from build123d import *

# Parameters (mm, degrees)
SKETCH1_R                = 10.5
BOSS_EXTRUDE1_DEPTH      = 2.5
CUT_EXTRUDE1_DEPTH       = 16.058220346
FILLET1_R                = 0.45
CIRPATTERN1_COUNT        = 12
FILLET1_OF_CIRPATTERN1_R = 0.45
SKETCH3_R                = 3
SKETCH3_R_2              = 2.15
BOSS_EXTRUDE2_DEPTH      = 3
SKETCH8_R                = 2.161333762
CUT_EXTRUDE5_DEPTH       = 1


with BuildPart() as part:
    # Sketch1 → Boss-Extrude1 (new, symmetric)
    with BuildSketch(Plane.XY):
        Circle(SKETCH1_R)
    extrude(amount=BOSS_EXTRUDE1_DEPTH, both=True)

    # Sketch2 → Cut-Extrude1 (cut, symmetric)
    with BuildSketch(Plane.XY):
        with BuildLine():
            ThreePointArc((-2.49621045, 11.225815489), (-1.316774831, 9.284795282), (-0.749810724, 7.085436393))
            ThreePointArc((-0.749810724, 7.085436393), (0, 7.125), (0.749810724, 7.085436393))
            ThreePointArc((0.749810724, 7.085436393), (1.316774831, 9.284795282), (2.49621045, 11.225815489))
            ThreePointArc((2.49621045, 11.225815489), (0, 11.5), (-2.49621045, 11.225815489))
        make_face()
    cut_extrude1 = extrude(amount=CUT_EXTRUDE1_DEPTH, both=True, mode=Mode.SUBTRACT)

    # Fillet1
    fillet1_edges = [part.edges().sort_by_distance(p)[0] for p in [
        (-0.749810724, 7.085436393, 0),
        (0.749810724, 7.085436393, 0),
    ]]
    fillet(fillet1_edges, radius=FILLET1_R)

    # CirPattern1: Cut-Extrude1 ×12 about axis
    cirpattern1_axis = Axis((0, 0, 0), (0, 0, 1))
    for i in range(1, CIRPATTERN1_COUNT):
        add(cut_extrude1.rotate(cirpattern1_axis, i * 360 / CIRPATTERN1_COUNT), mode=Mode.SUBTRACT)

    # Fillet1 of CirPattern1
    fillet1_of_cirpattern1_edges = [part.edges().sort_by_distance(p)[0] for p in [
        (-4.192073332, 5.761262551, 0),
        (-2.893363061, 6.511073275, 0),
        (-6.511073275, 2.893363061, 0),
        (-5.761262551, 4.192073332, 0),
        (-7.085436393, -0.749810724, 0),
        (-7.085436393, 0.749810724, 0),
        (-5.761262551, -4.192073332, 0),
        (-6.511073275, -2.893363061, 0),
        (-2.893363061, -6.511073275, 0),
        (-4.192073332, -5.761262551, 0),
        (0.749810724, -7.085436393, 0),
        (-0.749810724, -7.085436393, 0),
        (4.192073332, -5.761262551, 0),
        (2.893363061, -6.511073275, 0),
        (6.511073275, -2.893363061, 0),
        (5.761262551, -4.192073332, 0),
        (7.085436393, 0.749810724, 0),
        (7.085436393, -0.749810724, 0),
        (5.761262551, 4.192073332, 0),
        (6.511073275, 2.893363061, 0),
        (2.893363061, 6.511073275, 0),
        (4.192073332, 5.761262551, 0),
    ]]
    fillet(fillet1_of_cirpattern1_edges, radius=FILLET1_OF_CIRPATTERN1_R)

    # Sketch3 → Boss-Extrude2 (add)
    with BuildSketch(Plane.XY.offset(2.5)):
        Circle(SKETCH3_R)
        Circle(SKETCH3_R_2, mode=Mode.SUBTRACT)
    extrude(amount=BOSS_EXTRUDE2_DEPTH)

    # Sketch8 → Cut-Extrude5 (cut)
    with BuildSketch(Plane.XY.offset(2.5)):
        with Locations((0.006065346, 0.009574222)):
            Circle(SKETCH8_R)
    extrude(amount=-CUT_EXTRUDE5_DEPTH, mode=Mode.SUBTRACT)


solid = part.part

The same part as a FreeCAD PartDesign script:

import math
import FreeCAD as App
import Part
import Sketcher
from FreeCAD import Vector


def edges_at(feature, points):
    """Names of the edges that pass closest to the given points."""
    edges = feature.Shape.Edges
    near = lambda p: min(range(len(edges)), key=lambda i: edges[i].distToShape(Part.Vertex(*p))[0])
    return sorted({f"Edge{near(p) + 1}" for p in points})

doc = App.newDocument("Part")
params = doc.addObject("Spreadsheet::Sheet", "Params")
for row, (alias, value) in enumerate([
    ("sketch1_diameter", "21 mm"),
    ("pad1_length", "5 mm"),
    ("sketch2_radius", "11.5 mm"),
    ("pocket1_length", "32.116441 mm"),
    ("fillet_radius", "0.45 mm"),
    ("fillet2_radius", "0.45 mm"),
    ("sketch3_diameter", "6 mm"),
    ("sketch3_diameter2", "4.3 mm"),
    ("pad2_length", "3 mm"),
    ("pocket2_length", "1 mm"),
], start=1):
    params.set(f"A{row}", alias)
    params.set(f"B{row}", "=" + value)
    params.setAlias(f"B{row}", alias)

body = doc.addObject("PartDesign::Body", "Body")

# Sketch on XY plane
sketch1 = body.newObject("Sketcher::SketchObject", "Sketch")
sketch1.AttachmentSupport = (doc.getObject("XY_Plane"), [""])
sketch1.MapMode = "FlatFace"
sketch1.addGeometry(Part.Circle(Vector(0, 0, 0), Vector(0, 0, 1), 10.5), False)
sketch1.addConstraint([
    Sketcher.Constraint("Coincident", 0, 3, -1, 1),
    Sketcher.Constraint("Diameter", 0, 21.0),
])
sketch1.setExpression("Constraints[1]", "Params.sketch1_diameter")
pad1 = body.newObject("PartDesign::Pad", "Pad")
pad1.Profile = sketch1
pad1.setExpression("Length", "Params.pad1_length")
pad1.Midplane = True

# Sketch on XY plane
sketch2 = body.newObject("Sketcher::SketchObject", "Sketch001")
sketch2.AttachmentSupport = (doc.getObject("XY_Plane"), [""])
sketch2.MapMode = "FlatFace"
sketch2.addGeometry([
    Part.ArcOfCircle(Part.Circle(Vector(-8.467255, 6.268744, 0), Vector(0, 0, 1), 7.760536), math.radians(6.040798), math.radians(39.69895)),
    Part.ArcOfCircle(Part.Circle(Vector(0, 0, 0), Vector(0, 0, 1), 7.125), math.radians(83.959202), math.radians(96.040798)),
    Part.ArcOfCircle(Part.Circle(Vector(8.467255, 6.268744, 0), Vector(0, 0, 1), 7.760536), math.radians(140.30105), math.radians(173.959202)),
    Part.ArcOfCircle(Part.Circle(Vector(0, 0, 0), Vector(0, 0, 1), 11.5), math.radians(77.463485), math.radians(102.536515)),
], False)
sketch2.addConstraint([
    Sketcher.Constraint("Coincident", 0, 1, 1, 2),
    Sketcher.Constraint("Coincident", 1, 1, 2, 2),
    Sketcher.Constraint("Coincident", 2, 1, 3, 1),
    Sketcher.Constraint("Coincident", 3, 2, 0, 2),
    Sketcher.Constraint("Coincident", 1, 3, -1, 1),
    Sketcher.Constraint("Coincident", 3, 3, -1, 1),
    Sketcher.Constraint("Equal", 0, 2),
    Sketcher.Constraint("Symmetric", 0, 3, 2, 3, -2),
    Sketcher.Constraint("Radius", 3, 11.5),
    Sketcher.Constraint("Radius", 1, 7.125),
    Sketcher.Constraint("Radius", 0, 7.760536),
    Sketcher.Constraint("DistanceX", 1, 1, 2, 1, 1.7464),
    Sketcher.Constraint("DistanceX", 0, 1, -1, 1, 0.749811),
])
sketch2.setExpression("Constraints[8]", "Params.sketch2_radius")
pocket1 = body.newObject("PartDesign::Pocket", "Pocket")
pocket1.Profile = sketch2
pocket1.setExpression("Length", "Params.pocket1_length")
pocket1.Midplane = True
doc.recompute()

fillet = body.newObject("PartDesign::Fillet", "Fillet")
fillet.Base = (pocket1, edges_at(pocket1, [(-0.75, 7.085, 0), (0.75, 7.085, 0)]))
fillet.setExpression("Radius", "Params.fillet_radius")
doc.recompute()

polarpattern = body.newObject("PartDesign::PolarPattern", "PolarPattern")
polarpattern.Originals = [pocket1]
polarpattern.Axis = (doc.getObject("Z_Axis"), [""])
polarpattern.Angle = 360
polarpattern.Occurrences = 12
body.Tip = polarpattern
doc.recompute()

fillet2 = body.newObject("PartDesign::Fillet", "Fillet001")
fillet2.Base = (polarpattern, edges_at(polarpattern, [
    (-4.192, 5.761, 0),
    (-2.893, 6.511, 0),
    (-6.511, 2.893, 0),
    (-5.761, 4.192, 0),
    (-7.085, -0.75, 0),
    (-7.085, 0.75, 0),
    (-5.761, -4.192, 0),
    (-6.511, -2.893, 0),
    (-2.893, -6.511, 0),
    (-4.192, -5.761, 0),
    (0.75, -7.085, 0),
    (-0.75, -7.085, 0),
    (4.192, -5.761, 0),
    (2.893, -6.511, 0),
    (6.511, -2.893, 0),
    (5.761, -4.192, 0),
    (7.085, 0.75, 0),
    (7.085, -0.75, 0),
    (5.761, 4.192, 0),
    (6.511, 2.893, 0),
    (2.893, 6.511, 0),
    (4.192, 5.761, 0),
]))
fillet2.setExpression("Radius", "Params.fillet2_radius")

# Sketch on XY plane
sketch3 = body.newObject("Sketcher::SketchObject", "Sketch002")
sketch3.AttachmentSupport = (doc.getObject("XY_Plane"), [""])
sketch3.MapMode = "FlatFace"
sketch3.AttachmentOffset = App.Placement(Vector(0, 0, 2.5), App.Rotation())
sketch3.addGeometry([
    Part.Circle(Vector(0, 0, 0), Vector(0, 0, 1), 3),
    Part.Circle(Vector(0, 0, 0), Vector(0, 0, 1), 2.15),
], False)
sketch3.addConstraint([
    Sketcher.Constraint("Coincident", 0, 3, -1, 1),
    Sketcher.Constraint("Coincident", 1, 3, -1, 1),
    Sketcher.Constraint("Diameter", 0, 6.0),
    Sketcher.Constraint("Diameter", 1, 4.3),
])
sketch3.setExpression("Constraints[2]", "Params.sketch3_diameter")
sketch3.setExpression("Constraints[3]", "Params.sketch3_diameter2")
pad2 = body.newObject("PartDesign::Pad", "Pad001")
pad2.Profile = sketch3
pad2.setExpression("Length", "Params.pad2_length")

# Sketch on XY plane
sketch4 = body.newObject("Sketcher::SketchObject", "Sketch003")
sketch4.AttachmentSupport = (doc.getObject("XY_Plane"), [""])
sketch4.MapMode = "FlatFace"
sketch4.AttachmentOffset = App.Placement(Vector(0, 0, 2.5), App.Rotation())
sketch4.addGeometry(Part.Circle(Vector(0.006065, 0.009574, 0), Vector(0, 0, 1), 2.161334), False)
sketch4.addConstraint([
    Sketcher.Constraint("Diameter", 0, 4.322668),
    Sketcher.Constraint("DistanceX", -1, 1, 0, 3, 0.006065),
    Sketcher.Constraint("DistanceY", -1, 1, 0, 3, 0.009574),
])
pocket2 = body.newObject("PartDesign::Pocket", "Pocket001")
pocket2.Profile = sketch4
pocket2.setExpression("Length", "Params.pocket2_length")

doc.recompute()
